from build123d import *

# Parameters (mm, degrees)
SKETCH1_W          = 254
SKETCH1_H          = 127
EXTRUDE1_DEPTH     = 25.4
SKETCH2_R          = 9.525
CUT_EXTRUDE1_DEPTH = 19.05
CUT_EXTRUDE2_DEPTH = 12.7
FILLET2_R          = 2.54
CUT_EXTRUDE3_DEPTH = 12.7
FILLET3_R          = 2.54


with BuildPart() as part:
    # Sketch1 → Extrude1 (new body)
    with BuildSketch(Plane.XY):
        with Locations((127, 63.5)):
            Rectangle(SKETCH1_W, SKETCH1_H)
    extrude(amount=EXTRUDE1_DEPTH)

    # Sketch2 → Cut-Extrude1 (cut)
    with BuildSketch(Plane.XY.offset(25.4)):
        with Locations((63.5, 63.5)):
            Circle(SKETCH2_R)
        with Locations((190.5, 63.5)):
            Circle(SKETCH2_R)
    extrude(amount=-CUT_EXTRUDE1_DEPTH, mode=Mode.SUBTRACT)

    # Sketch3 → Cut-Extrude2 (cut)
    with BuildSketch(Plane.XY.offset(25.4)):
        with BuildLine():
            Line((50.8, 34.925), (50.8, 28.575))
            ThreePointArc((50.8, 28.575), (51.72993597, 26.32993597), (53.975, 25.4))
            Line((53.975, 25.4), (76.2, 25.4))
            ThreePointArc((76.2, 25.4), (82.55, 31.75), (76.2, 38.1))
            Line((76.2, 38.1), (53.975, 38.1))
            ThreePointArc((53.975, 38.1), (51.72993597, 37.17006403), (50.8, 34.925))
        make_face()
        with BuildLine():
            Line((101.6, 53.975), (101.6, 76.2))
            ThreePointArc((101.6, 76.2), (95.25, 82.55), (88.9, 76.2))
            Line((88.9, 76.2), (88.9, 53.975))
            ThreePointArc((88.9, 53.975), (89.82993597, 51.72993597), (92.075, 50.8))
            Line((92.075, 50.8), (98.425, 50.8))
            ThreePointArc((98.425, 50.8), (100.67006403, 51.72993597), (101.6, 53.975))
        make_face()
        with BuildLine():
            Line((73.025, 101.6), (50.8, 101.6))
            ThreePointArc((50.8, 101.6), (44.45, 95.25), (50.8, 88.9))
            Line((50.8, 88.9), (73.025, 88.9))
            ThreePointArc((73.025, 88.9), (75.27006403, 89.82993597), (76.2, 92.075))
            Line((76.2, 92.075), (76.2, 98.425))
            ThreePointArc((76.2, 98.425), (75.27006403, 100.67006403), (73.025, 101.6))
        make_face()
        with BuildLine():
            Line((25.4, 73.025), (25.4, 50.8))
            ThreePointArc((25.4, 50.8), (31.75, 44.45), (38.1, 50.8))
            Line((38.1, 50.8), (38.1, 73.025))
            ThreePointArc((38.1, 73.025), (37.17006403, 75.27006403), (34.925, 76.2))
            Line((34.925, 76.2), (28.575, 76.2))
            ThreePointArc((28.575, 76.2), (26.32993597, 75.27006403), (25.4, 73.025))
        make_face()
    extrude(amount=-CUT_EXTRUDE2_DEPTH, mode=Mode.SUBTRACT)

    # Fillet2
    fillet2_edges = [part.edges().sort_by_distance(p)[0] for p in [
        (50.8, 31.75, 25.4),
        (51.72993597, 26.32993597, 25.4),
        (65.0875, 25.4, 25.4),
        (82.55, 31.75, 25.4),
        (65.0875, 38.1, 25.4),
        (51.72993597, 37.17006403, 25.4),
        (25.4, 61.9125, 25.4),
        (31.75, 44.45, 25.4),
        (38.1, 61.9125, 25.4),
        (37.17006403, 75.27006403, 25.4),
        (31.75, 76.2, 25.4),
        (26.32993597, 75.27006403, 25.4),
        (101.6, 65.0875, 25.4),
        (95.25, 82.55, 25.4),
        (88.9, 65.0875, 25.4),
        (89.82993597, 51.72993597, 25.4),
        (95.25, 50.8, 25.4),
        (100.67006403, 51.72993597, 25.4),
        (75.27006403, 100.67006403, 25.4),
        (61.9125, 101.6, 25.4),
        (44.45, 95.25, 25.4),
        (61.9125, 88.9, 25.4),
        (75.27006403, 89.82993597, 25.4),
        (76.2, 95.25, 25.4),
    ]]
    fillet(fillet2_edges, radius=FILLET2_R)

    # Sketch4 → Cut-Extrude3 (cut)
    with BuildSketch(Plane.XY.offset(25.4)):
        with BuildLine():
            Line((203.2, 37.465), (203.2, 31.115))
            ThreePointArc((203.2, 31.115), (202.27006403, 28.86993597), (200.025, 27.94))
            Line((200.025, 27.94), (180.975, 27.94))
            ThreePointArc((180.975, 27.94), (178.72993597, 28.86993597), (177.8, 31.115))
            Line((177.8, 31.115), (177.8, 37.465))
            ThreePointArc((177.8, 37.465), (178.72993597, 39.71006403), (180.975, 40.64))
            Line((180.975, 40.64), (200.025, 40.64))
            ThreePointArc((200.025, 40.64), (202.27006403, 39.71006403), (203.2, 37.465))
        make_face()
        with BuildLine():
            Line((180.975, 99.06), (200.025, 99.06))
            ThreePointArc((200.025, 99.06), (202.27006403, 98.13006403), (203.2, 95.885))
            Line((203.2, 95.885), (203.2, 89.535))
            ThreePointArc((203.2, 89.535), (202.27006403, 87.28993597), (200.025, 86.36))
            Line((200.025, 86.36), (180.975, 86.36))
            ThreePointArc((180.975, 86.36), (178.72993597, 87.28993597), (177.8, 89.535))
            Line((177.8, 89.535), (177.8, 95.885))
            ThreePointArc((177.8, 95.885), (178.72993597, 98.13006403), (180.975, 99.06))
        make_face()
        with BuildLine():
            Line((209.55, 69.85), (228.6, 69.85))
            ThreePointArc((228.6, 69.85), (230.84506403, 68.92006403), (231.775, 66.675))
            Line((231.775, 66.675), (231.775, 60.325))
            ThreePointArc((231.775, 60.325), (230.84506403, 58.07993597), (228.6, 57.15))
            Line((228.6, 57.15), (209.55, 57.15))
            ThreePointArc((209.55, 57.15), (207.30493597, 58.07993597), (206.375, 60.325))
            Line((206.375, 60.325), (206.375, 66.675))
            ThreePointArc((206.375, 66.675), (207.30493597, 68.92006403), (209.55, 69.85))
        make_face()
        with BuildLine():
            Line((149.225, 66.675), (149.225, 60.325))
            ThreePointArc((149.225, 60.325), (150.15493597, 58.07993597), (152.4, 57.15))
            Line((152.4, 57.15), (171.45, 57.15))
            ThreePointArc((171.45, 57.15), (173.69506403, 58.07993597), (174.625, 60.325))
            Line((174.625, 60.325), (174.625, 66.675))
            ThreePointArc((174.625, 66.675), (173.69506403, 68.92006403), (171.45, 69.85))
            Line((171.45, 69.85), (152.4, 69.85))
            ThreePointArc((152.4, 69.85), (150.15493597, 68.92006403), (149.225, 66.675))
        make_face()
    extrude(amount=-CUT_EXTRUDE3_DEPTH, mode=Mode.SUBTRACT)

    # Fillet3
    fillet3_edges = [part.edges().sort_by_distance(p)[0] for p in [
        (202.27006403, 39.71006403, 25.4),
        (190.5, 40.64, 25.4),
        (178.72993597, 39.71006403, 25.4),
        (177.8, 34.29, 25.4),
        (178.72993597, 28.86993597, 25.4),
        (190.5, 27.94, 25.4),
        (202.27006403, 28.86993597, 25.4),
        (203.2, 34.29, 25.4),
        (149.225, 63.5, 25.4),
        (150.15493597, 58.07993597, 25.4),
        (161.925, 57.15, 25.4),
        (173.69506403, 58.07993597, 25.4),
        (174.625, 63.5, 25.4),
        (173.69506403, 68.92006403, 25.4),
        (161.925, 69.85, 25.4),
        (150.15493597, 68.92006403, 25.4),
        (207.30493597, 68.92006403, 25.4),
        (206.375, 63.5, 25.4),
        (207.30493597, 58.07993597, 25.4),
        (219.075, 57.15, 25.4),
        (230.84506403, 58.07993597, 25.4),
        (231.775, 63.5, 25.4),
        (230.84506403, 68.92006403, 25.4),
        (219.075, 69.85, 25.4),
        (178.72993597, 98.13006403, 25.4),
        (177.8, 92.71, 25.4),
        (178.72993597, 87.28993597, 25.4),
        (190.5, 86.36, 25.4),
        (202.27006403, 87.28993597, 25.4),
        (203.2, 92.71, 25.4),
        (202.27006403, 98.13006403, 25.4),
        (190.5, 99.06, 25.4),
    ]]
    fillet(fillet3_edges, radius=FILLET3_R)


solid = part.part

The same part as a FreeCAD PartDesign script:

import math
import FreeCAD as App
import Part
import Sketcher
from FreeCAD import Vector
Q = App.Units.Quantity


def edges_at(feature, points):
    """Names of the edges that pass closest to the given points."""
    edges = feature.Shape.Edges
    near = lambda p: min(range(len(edges)), key=lambda i: edges[i].distToShape(Part.Vertex(*p))[0])
    return sorted({f"Edge{near(p) + 1}" for p in points})

doc = App.newDocument("Part")
params = doc.addObject("Spreadsheet::Sheet", "Params")
for row, (alias, value) in enumerate([
    ("sketch1_width", "10 in"),
    ("sketch1_height", "5 in"),
    ("pad1_length", "1 in"),
    ("sketch2_diameter", "0.75 in"),
    ("pocket1_length", "0.75 in"),
    ("sketch3_radius", "0.25 in"),
    ("sketch3_radius2", "0.125 in"),
    ("pocket2_length", "0.5 in"),
    ("fillet_radius", "0.1 in"),
    ("sketch4_radius", "0.125 in"),
    ("sketch4_height", "0.25 in"),
    ("pocket3_length", "0.5 in"),
    ("fillet2_radius", "0.1 in"),
], start=1):
    params.set(f"A{row}", alias)
    params.set(f"B{row}", "=" + value)
    params.setAlias(f"B{row}", alias)

body = doc.addObject("PartDesign::Body", "Body")

# Sketch on XY plane
sketch1 = body.newObject("Sketcher::SketchObject", "Sketch")
sketch1.AttachmentSupport = (doc.getObject("XY_Plane"), [""])
sketch1.MapMode = "FlatFace"
sketch1.addGeometry(Part.LineSegment(Vector(0, 127, 0), Vector(0, 0, 0)), False)
sketch1.addGeometry(Part.LineSegment(Vector(0, 0, 0), Vector(254, 0, 0)), False)
sketch1.addGeometry(Part.LineSegment(Vector(254, 0, 0), Vector(254, 127, 0)), False)
sketch1.addGeometry(Part.LineSegment(Vector(254, 127, 0), Vector(0, 127, 0)), False)
sketch1.addConstraint(Sketcher.Constraint("Coincident", 0, 2, 1, 1))
sketch1.addConstraint(Sketcher.Constraint("Coincident", 1, 2, 2, 1))
sketch1.addConstraint(Sketcher.Constraint("Coincident", 2, 2, 3, 1))
sketch1.addConstraint(Sketcher.Constraint("Coincident", 3, 2, 0, 1))
sketch1.addConstraint(Sketcher.Constraint("Vertical", 0))
sketch1.addConstraint(Sketcher.Constraint("Horizontal", 1))
sketch1.addConstraint(Sketcher.Constraint("Vertical", 2))
sketch1.addConstraint(Sketcher.Constraint("Horizontal", 3))
sketch1.addConstraint(Sketcher.Constraint("Coincident", 0, 2, -1, 1))
sketch1.addConstraint(Sketcher.Constraint("DistanceX", 1, 1, 1, 2, Q("10 in")))
sketch1.addConstraint(Sketcher.Constraint("DistanceY", 0, 2, 0, 1, Q("5 in")))
sketch1.setExpression("Constraints[9]", "Params.sketch1_width")
sketch1.setExpression("Constraints[10]", "Params.sketch1_height")
pad1 = body.newObject("PartDesign::Pad", "Pad")
pad1.Profile = sketch1
pad1.setExpression("Length", "Params.pad1_length")

# Sketch on XY plane
sketch2 = body.newObject("Sketcher::SketchObject", "Sketch001")
sketch2.AttachmentSupport = (doc.getObject("XY_Plane"), [""])
sketch2.MapMode = "FlatFace"
sketch2.AttachmentOffset = App.Placement(Vector(0, 0, 1 * 25.4), App.Rotation())
sketch2.addGeometry(Part.Circle(Vector(64, 64, 0), Vector(0, 0, 1), 10), False)
sketch2.addGeometry(Part.Circle(Vector(190, 64, 0), Vector(0, 0, 1), 10), False)
sketch2.addConstraint(Sketcher.Constraint("Equal", 0, 1))
sketch2.addConstraint(Sketcher.Constraint("Horizontal", 0, 3, 1, 3))
sketch2.addConstraint(Sketcher.Constraint("Diameter", 0, Q("0.75 in")))
sketch2.addConstraint(Sketcher.Constraint("DistanceX", 0, 3, 1, 3, Q("5 in")))
sketch2.addConstraint(Sketcher.Constraint("DistanceX", -1, 1, 0, 3, Q("2.5 in")))
sketch2.addConstraint(Sketcher.Constraint("DistanceY", -1, 1, 0, 3, Q("2.5 in")))
sketch2.setExpression("Constraints[2]", "Params.sketch2_diameter")
pocket1 = body.newObject("PartDesign::Pocket", "Pocket")
pocket1.Profile = sketch2
pocket1.setExpression("Length", "Params.pocket1_length")

# Sketch on XY plane
sketch3 = body.newObject("Sketcher::SketchObject", "Sketch002")
sketch3.AttachmentSupport = (doc.getObject("XY_Plane"), [""])
sketch3.MapMode = "FlatFace"
sketch3.AttachmentOffset = App.Placement(Vector(0, 0, 1 * 25.4), App.Rotation())
sketch3.addGeometry(Part.LineSegment(Vector(50.8, 34.9, 0), Vector(50.8, 28.6, 0)), False)
sketch3.addGeometry(Part.ArcOfCircle(Part.Circle(Vector(54, 28.6, 0), Vector(0, 0, 1), 3.2), math.radians(-180), math.radians(-90)), False)
sketch3.addGeometry(Part.LineSegment(Vector(54, 25.4, 0), Vector(76.2, 25.4, 0)), False)
sketch3.addGeometry(Part.ArcOfCircle(Part.Circle(Vector(76.2, 31.8, 0), Vector(0, 0, 1), 6.3), math.radians(-90), math.radians(90)), False)
sketch3.addGeometry(Part.LineSegment(Vector(76.2, 38.1, 0), Vector(54, 38.1, 0)), False)
sketch3.addGeometry(Part.ArcOfCircle(Part.Circle(Vector(54, 34.9, 0), Vector(0, 0, 1), 3.2), math.radians(90), math.radians(180)), False)
sketch3.addGeometry(Part.LineSegment(Vector(101.6, 54, 0), Vector(101.6, 76.2, 0)), False)
sketch3.addGeometry(Part.ArcOfCircle(Part.Circle(Vector(95.2, 76.2, 0), Vector(0, 0, 1), 6.3), math.radians(0), math.radians(180)), False)
sketch3.addGeometry(Part.LineSegment(Vector(88.9, 76.2, 0), Vector(88.9, 54, 0)), False)
sketch3.addGeometry(Part.ArcOfCircle(Part.Circle(Vector(92.1, 54, 0), Vector(0, 0, 1), 3.2), math.radians(-180), math.radians(-90)), False)
sketch3.addGeometry(Part.LineSegment(Vector(92.1, 50.8, 0), Vector(98.4, 50.8, 0)), False)
sketch3.addGeometry(Part.ArcOfCircle(Part.Circle(Vector(98.4, 54, 0), Vector(0, 0, 1), 3.2), math.radians(-90), math.radians(0)), False)
sketch3.addGeometry(Part.LineSegment(Vector(73, 101.6, 0), Vector(50.8, 101.6, 0)), False)
sketch3.addGeometry(Part.ArcOfCircle(Part.Circle(Vector(50.8, 95.2, 0), Vector(0, 0, 1), 6.3), math.radians(90), math.radians(270)), False)
sketch3.addGeometry(Part.LineSegment(Vector(50.8, 88.9, 0), Vector(73, 88.9, 0)), False)
sketch3.addGeometry(Part.ArcOfCircle(Part.Circle(Vector(73, 92.1, 0), Vector(0, 0, 1), 3.2), math.radians(-90), math.radians(0)), False)
sketch3.addGeometry(Part.LineSegment(Vector(76.2, 92.1, 0), Vector(76.2, 98.4, 0)), False)
sketch3.addGeometry(Part.ArcOfCircle(Part.Circle(Vector(73, 98.4, 0), Vector(0, 0, 1), 3.2), math.radians(0), math.radians(90)), False)
sketch3.addGeometry(Part.LineSegment(Vector(25.4, 73, 0), Vector(25.4, 50.8, 0)), False)
sketch3.addGeometry(Part.ArcOfCircle(Part.Circle(Vector(31.8, 50.8, 0), Vector(0, 0, 1), 6.3), math.radians(180), math.radians(360)), False)
sketch3.addGeometry(Part.LineSegment(Vector(38.1, 50.8, 0), Vector(38.1, 73, 0)), False)
sketch3.addGeometry(Part.ArcOfCircle(Part.Circle(Vector(34.9, 73, 0), Vector(0, 0, 1), 3.2), math.radians(0), math.radians(90)), False)
sketch3.addGeometry(Part.LineSegment(Vector(34.9, 76.2, 0), Vector(28.6, 76.2, 0)), False)
sketch3.addGeometry(Part.ArcOfCircle(Part.Circle(Vector(28.6, 73, 0), Vector(0, 0, 1), 3.2), math.radians(90), math.radians(180)), False)
sketch3.addConstraint(Sketcher.Constraint("Tangent", 0, 2, 1, 1))
sketch3.addConstraint(Sketcher.Constraint("Tangent", 1, 2, 2, 1))
sketch3.addConstraint(Sketcher.Constraint("Tangent", 2, 2, 3, 1))
sketch3.addConstraint(Sketcher.Constraint("Tangent", 3, 2, 4, 1))
sketch3.addConstraint(Sketcher.Constraint("Tangent", 4, 2, 5, 1))
sketch3.addConstraint(Sketcher.Constraint("Tangent", 5, 2, 0, 1))
sketch3.addConstraint(Sketcher.Constraint("Tangent", 6, 2, 7, 1))
sketch3.addConstraint(Sketcher.Constraint("Tangent", 7, 2, 8, 1))
sketch3.addConstraint(Sketcher.Constraint("Tangent", 8, 2, 9, 1))
sketch3.addConstraint(Sketcher.Constraint("Tangent", 9, 2, 10, 1))
sketch3.addConstraint(Sketcher.Constraint("Tangent", 10, 2, 11, 1))
sketch3.addConstraint(Sketcher.Constraint("Tangent", 11, 2, 6, 1))
sketch3.addConstraint(Sketcher.Constraint("Tangent", 12, 2, 13, 1))
sketch3.addConstraint(Sketcher.Constraint("Tangent", 13, 2, 14, 1))
sketch3.addConstraint(Sketcher.Constraint("Tangent", 14, 2, 15, 1))
sketch3.addConstraint(Sketcher.Constraint("Tangent", 15, 2, 16, 1))
sketch3.addConstraint(Sketcher.Constraint("Tangent", 16, 2, 17, 1))
sketch3.addConstraint(Sketcher.Constraint("Tangent", 17, 2, 12, 1))
sketch3.addConstraint(Sketcher.Constraint("Tangent", 18, 2, 19, 1))
sketch3.addConstraint(Sketcher.Constraint("Tangent", 19, 2, 20, 1))
sketch3.addConstraint(Sketcher.Constraint("Tangent", 20, 2, 21, 1))
sketch3.addConstraint(Sketcher.Constraint("Tangent", 21, 2, 22, 1))
sketch3.addConstraint(Sketcher.Constraint("Tangent", 22, 2, 23, 1))
sketch3.addConstraint(Sketcher.Constraint("Tangent", 23, 2, 18, 1))
sketch3.addConstraint(Sketcher.Constraint("Vertical", 0))
sketch3.addConstraint(Sketcher.Constraint("Horizontal", 2))
sketch3.addConstraint(Sketcher.Constraint("Horizontal", 4))
sketch3.addConstraint(Sketcher.Constraint("Vertical", 6))
sketch3.addConstraint(Sketcher.Constraint("Vertical", 8))
sketch3.addConstraint(Sketcher.Constraint("Horizontal", 10))
sketch3.addConstraint(Sketcher.Constraint("Horizontal", 12))
sketch3.addConstraint(Sketcher.Constraint("Horizontal", 14))
sketch3.addConstraint(Sketcher.Constraint("Vertical", 16))
sketch3.addConstraint(Sketcher.Constraint("Vertical", 18))
sketch3.addConstraint(Sketcher.Constraint("Vertical", 20))
sketch3.addConstraint(Sketcher.Constraint("Horizontal", 22))
sketch3.addConstraint(Sketcher.Constraint("Equal", 1, 5))
sketch3.addConstraint(Sketcher.Constraint("Equal", 3, 7))
sketch3.addConstraint(Sketcher.Constraint("Equal", 5, 9))
sketch3.addConstraint(Sketcher.Constraint("Equal", 9, 11))
sketch3.addConstraint(Sketcher.Constraint("Equal", 7, 13))
sketch3.addConstraint(Sketcher.Constraint("Equal", 11, 15))
sketch3.addConstraint(Sketcher.Constraint("Equal", 15, 17))
sketch3.addConstraint(Sketcher.Constraint("Equal", 13, 19))
sketch3.addConstraint(Sketcher.Constraint("Equal", 17, 21))
sketch3.addConstraint(Sketcher.Constraint("Equal", 21, 23))
sketch3.addConstraint(Sketcher.Constraint("Horizontal", 19, 3, 9, 2))
sketch3.addConstraint(Sketcher.Constraint("Horizontal", 7, 2, 21, 2))
sketch3.addConstraint(Sketcher.Constraint("Vertical", 13, 3, 0, 2))
sketch3.addConstraint(Sketcher.Constraint("Vertical", 3, 2, 15, 2))
sketch3.addConstraint(Sketcher.Constraint("Equal", 14, 6))
sketch3.addConstraint(Sketcher.Constraint("Radius", 3, Q("0.25 in")))
sketch3.addConstraint(Sketcher.Constraint("DistanceX", -1, 1, 3, 3, Q("3 in")))
sketch3.addConstraint(Sketcher.Constraint("DistanceY", -1, 1, 7, 3, Q("3 in")))
sketch3.addConstraint(Sketcher.Constraint("DistanceX", -1, 1, 13, 3, Q("2 in")))
sketch3.addConstraint(Sketcher.Constraint("DistanceY", -1, 1, 1, 2, Q("1 in")))
sketch3.addConstraint(Sketcher.Constraint("DistanceX", -1, 1, 6, 2, Q("4 in")))
sketch3.addConstraint(Sketcher.Constraint("DistanceY", -1, 1, 12, 2, Q("4 in")))
sketch3.addConstraint(Sketcher.Constraint("DistanceX", -1, 1, 18, 2, Q("1 in")))
sketch3.addConstraint(Sketcher.Constraint("Radius", 1, Q("0.125 in")))
sketch3.setExpression("Constraints[51]", "Params.sketch3_radius")
sketch3.setExpression("Constraints[59]", "Params.sketch3_radius2")
pocket2 = body.newObject("PartDesign::Pocket", "Pocket001")
pocket2.Profile = sketch3
pocket2.setExpression("Length", "Params.pocket2_length")
doc.recompute()

fillet = body.newObject("PartDesign::Fillet", "Fillet")
fillet.Base = (pocket2, edges_at(pocket2, [
    (50.8, 31.75, 25.4),
    (51.73, 26.33, 25.4),
    (65.088, 25.4, 25.4),
    (82.55, 31.75, 25.4),
    (65.088, 38.1, 25.4),
    (51.73, 37.17, 25.4),
    (25.4, 61.913, 25.4),
    (31.75, 44.45, 25.4),
    (38.1, 61.913, 25.4),
    (37.17, 75.27, 25.4),
    (31.75, 76.2, 25.4),
    (26.33, 75.27, 25.4),
    (101.6, 65.088, 25.4),
    (95.25, 82.55, 25.4),
    (88.9, 65.088, 25.4),
    (89.83, 51.73, 25.4),
    (95.25, 50.8, 25.4),
    (100.67, 51.73, 25.4),
    (75.27, 100.67, 25.4),
    (61.913, 101.6, 25.4),
    (44.45, 95.25, 25.4),
    (61.913, 88.9, 25.4),
    (75.27, 89.83, 25.4),
    (76.2, 95.25, 25.4),
]))
fillet.setExpression("Radius", "Params.fillet_radius")

# Sketch on XY plane
sketch4 = body.newObject("Sketcher::SketchObject", "Sketch003")
sketch4.AttachmentSupport = (doc.getObject("XY_Plane"), [""])
sketch4.MapMode = "FlatFace"
sketch4.AttachmentOffset = App.Placement(Vector(0, 0, 1 * 25.4), App.Rotation())
sketch4.addGeometry(Part.LineSegment(Vector(203.2, 31.1, 0), Vector(203.2, 37.5, 0)), False)
sketch4.addGeometry(Part.ArcOfCircle(Part.Circle(Vector(200, 37.5, 0), Vector(0, 0, 1), 3.2), math.radians(0), math.radians(90)), False)
sketch4.addGeometry(Part.LineSegment(Vector(200, 40.6, 0), Vector(181, 40.6, 0)), False)
sketch4.addGeometry(Part.ArcOfCircle(Part.Circle(Vector(181, 37.5, 0), Vector(0, 0, 1), 3.2), math.radians(90), math.radians(180)), False)
sketch4.addGeometry(Part.LineSegment(Vector(177.8, 37.5, 0), Vector(177.8, 31.1, 0)), False)
sketch4.addGeometry(Part.ArcOfCircle(Part.Circle(Vector(181, 31.1, 0), Vector(0, 0, 1), 3.2), math.radians(-180), math.radians(-90)), False)
sketch4.addGeometry(Part.LineSegment(Vector(181, 27.9, 0), Vector(200, 27.9, 0)), False)
sketch4.addGeometry(Part.ArcOfCircle(Part.Circle(Vector(200, 31.1, 0), Vector(0, 0, 1), 3.2), math.radians(-90), math.radians(0)), False)
sketch4.addGeometry(Part.LineSegment(Vector(200, 99.1, 0), Vector(181, 99.1, 0)), False)
sketch4.addGeometry(Part.ArcOfCircle(Part.Circle(Vector(181, 95.9, 0), Vector(0, 0, 1), 3.2), math.radians(90), math.radians(180)), False)
sketch4.addGeometry(Part.LineSegment(Vector(177.8, 95.9, 0), Vector(177.8, 89.5, 0)), False)
sketch4.addGeometry(Part.ArcOfCircle(Part.Circle(Vector(181, 89.5, 0), Vector(0, 0, 1), 3.2), math.radians(-180), math.radians(-90)), False)
sketch4.addGeometry(Part.LineSegment(Vector(181, 86.4, 0), Vector(200, 86.4, 0)), False)
sketch4.addGeometry(Part.ArcOfCircle(Part.Circle(Vector(200, 89.5, 0), Vector(0, 0, 1), 3.2), math.radians(-90), math.radians(0)), False)
sketch4.addGeometry(Part.LineSegment(Vector(203.2, 89.5, 0), Vector(203.2, 95.9, 0)), False)
sketch4.addGeometry(Part.ArcOfCircle(Part.Circle(Vector(200, 95.9, 0), Vector(0, 0, 1), 3.2), math.radians(0), math.radians(90)), False)
sketch4.addGeometry(Part.LineSegment(Vector(228.6, 69.8, 0), Vector(209.6, 69.8, 0)), False)
sketch4.addGeometry(Part.ArcOfCircle(Part.Circle(Vector(209.6, 66.7, 0), Vector(0, 0, 1), 3.2), math.radians(90), math.radians(180)), False)
sketch4.addGeometry(Part.LineSegment(Vector(206.4, 66.7, 0), Vector(206.4, 60.3, 0)), False)
sketch4.addGeometry(Part.ArcOfCircle(Part.Circle(Vector(209.6, 60.3, 0), Vector(0, 0, 1), 3.2), math.radians(-180), math.radians(-90)), False)
sketch4.addGeometry(Part.LineSegment(Vector(209.6, 57.1, 0), Vector(228.6, 57.1, 0)), False)
sketch4.addGeometry(Part.ArcOfCircle(Part.Circle(Vector(228.6, 60.3, 0), Vector(0, 0, 1), 3.2), math.radians(-90), math.radians(0)), False)
sketch4.addGeometry(Part.LineSegment(Vector(231.8, 60.3, 0), Vector(231.8, 66.7, 0)), False)
sketch4.addGeometry(Part.ArcOfCircle(Part.Circle(Vector(228.6, 66.7, 0), Vector(0, 0, 1), 3.2), math.radians(0), math.radians(90)), False)
sketch4.addGeometry(Part.LineSegment(Vector(149.2, 66.7, 0), Vector(149.2, 60.3, 0)), False)
sketch4.addGeometry(Part.ArcOfCircle(Part.Circle(Vector(152.4, 60.3, 0), Vector(0, 0, 1), 3.2), math.radians(-180), math.radians(-90)), False)
sketch4.addGeometry(Part.LineSegment(Vector(152.4, 57.1, 0), Vector(171.4, 57.1, 0)), False)
sketch4.addGeometry(Part.ArcOfCircle(Part.Circle(Vector(171.4, 60.3, 0), Vector(0, 0, 1), 3.2), math.radians(-90), math.radians(0)), False)
sketch4.addGeometry(Part.LineSegment(Vector(174.6, 60.3, 0), Vector(174.6, 66.7, 0)), False)
sketch4.addGeometry(Part.ArcOfCircle(Part.Circle(Vector(171.4, 66.7, 0), Vector(0, 0, 1), 3.2), math.radians(0), math.radians(90)), False)
sketch4.addGeometry(Part.LineSegment(Vector(171.4, 69.8, 0), Vector(152.4, 69.8, 0)), False)
sketch4.addGeometry(Part.ArcOfCircle(Part.Circle(Vector(152.4, 66.7, 0), Vector(0, 0, 1), 3.2), math.radians(90), math.radians(180)), False)
sketch4.addConstraint(Sketcher.Constraint("Tangent", 0, 2, 1, 1))
sketch4.addConstraint(Sketcher.Constraint("Tangent", 1, 2, 2, 1))
sketch4.addConstraint(Sketcher.Constraint("Tangent", 2, 2, 3, 1))
sketch4.addConstraint(Sketcher.Constraint("Tangent", 3, 2, 4, 1))
sketch4.addConstraint(Sketcher.Constraint("Tangent", 4, 2, 5, 1))
sketch4.addConstraint(Sketcher.Constraint("Tangent", 5, 2, 6, 1))
sketch4.addConstraint(Sketcher.Constraint("Tangent", 6, 2, 7, 1))
sketch4.addConstraint(Sketcher.Constraint("Tangent", 7, 2, 0, 1))
sketch4.addConstraint(Sketcher.Constraint("Tangent", 8, 2, 9, 1))
sketch4.addConstraint(Sketcher.Constraint("Tangent", 9, 2, 10, 1))
sketch4.addConstraint(Sketcher.Constraint("Tangent", 10, 2, 11, 1))
sketch4.addConstraint(Sketcher.Constraint("Tangent", 11, 2, 12, 1))
sketch4.addConstraint(Sketcher.Constraint("Tangent", 12, 2, 13, 1))
sketch4.addConstraint(Sketcher.Constraint("Tangent", 13, 2, 14, 1))
sketch4.addConstraint(Sketcher.Constraint("Tangent", 14, 2, 15, 1))
sketch4.addConstraint(Sketcher.Constraint("Tangent", 15, 2, 8, 1))
sketch4.addConstraint(Sketcher.Constraint("Tangent", 16, 2, 17, 1))
sketch4.addConstraint(Sketcher.Constraint("Tangent", 17, 2, 18, 1))
sketch4.addConstraint(Sketcher.Constraint("Tangent", 18, 2, 19, 1))
sketch4.addConstraint(Sketcher.Constraint("Tangent", 19, 2, 20, 1))
sketch4.addConstraint(Sketcher.Constraint("Tangent", 20, 2, 21, 1))
sketch4.addConstraint(Sketcher.Constraint("Tangent", 21, 2, 22, 1))
sketch4.addConstraint(Sketcher.Constraint("Tangent", 22, 2, 23, 1))
sketch4.addConstraint(Sketcher.Constraint("Tangent", 23, 2, 16, 1))
sketch4.addConstraint(Sketcher.Constraint("Tangent", 24, 2, 25, 1))
sketch4.addConstraint(Sketcher.Constraint("Tangent", 25, 2, 26, 1))
sketch4.addConstraint(Sketcher.Constraint("Tangent", 26, 2, 27, 1))
sketch4.addConstraint(Sketcher.Constraint("Tangent", 27, 2, 28, 1))
sketch4.addConstraint(Sketcher.Constraint("Tangent", 28, 2, 29, 1))
sketch4.addConstraint(Sketcher.Constraint("Tangent", 29, 2, 30, 1))
sketch4.addConstraint(Sketcher.Constraint("Tangent", 30, 2, 31, 1))
sketch4.addConstraint(Sketcher.Constraint("Tangent", 31, 2, 24, 1))
sketch4.addConstraint(Sketcher.Constraint("Vertical", 0))
sketch4.addConstraint(Sketcher.Constraint("Horizontal", 2))
sketch4.addConstraint(Sketcher.Constraint("Vertical", 4))
sketch4.addConstraint(Sketcher.Constraint("Horizontal", 6))
sketch4.addConstraint(Sketcher.Constraint("Horizontal", 8))
sketch4.addConstraint(Sketcher.Constraint("Vertical", 10))
sketch4.addConstraint(Sketcher.Constraint("Horizontal", 12))
sketch4.addConstraint(Sketcher.Constraint("Vertical", 14))
sketch4.addConstraint(Sketcher.Constraint("Horizontal", 16))
sketch4.addConstraint(Sketcher.Constraint("Vertical", 18))
sketch4.addConstraint(Sketcher.Constraint("Horizontal", 20))
sketch4.addConstraint(Sketcher.Constraint("Vertical", 22))
sketch4.addConstraint(Sketcher.Constraint("Vertical", 24))
sketch4.addConstraint(Sketcher.Constraint("Horizontal", 26))
sketch4.addConstraint(Sketcher.Constraint("Vertical", 28))
sketch4.addConstraint(Sketcher.Constraint("Horizontal", 30))
sketch4.addConstraint(Sketcher.Constraint("Equal", 1, 3))
sketch4.addConstraint(Sketcher.Constraint("Equal", 3, 5))
sketch4.addConstraint(Sketcher.Constraint("Equal", 5, 7))
sketch4.addConstraint(Sketcher.Constraint("Equal", 7, 9))
sketch4.addConstraint(Sketcher.Constraint("Equal", 9, 11))
sketch4.addConstraint(Sketcher.Constraint("Equal", 11, 13))
sketch4.addConstraint(Sketcher.Constraint("Equal", 13, 15))
sketch4.addConstraint(Sketcher.Constraint("Equal", 15, 17))
sketch4.addConstraint(Sketcher.Constraint("Equal", 17, 19))
sketch4.addConstraint(Sketcher.Constraint("Equal", 19, 21))
sketch4.addConstraint(Sketcher.Constraint("Equal", 21, 23))
sketch4.addConstraint(Sketcher.Constraint("Equal", 23, 25))
sketch4.addConstraint(Sketcher.Constraint("Equal", 25, 27))
sketch4.addConstraint(Sketcher.Constraint("Equal", 27, 29))
sketch4.addConstraint(Sketcher.Constraint("Equal", 29, 31))
sketch4.addConstraint(Sketcher.Constraint("Horizontal", 21, 3, 25, 3))
sketch4.addConstraint(Sketcher.Constraint("Horizontal", 23, 3, 29, 3))
sketch4.addConstraint(Sketcher.Constraint("Vertical", 5, 3, 9, 3))
sketch4.addConstraint(Sketcher.Constraint("Vertical", 7, 3, 13, 3))
sketch4.addConstraint(Sketcher.Constraint("Equal", 12, 16))
sketch4.addConstraint(Sketcher.Constraint("Equal", 20, 26))
sketch4.addConstraint(Sketcher.Constraint("Equal", 4, 10))
sketch4.addConstraint(Sketcher.Constraint("Equal", 14, 18))
sketch4.addConstraint(Sketcher.Constraint("DistanceX", -1, 1, 21, 3, Q("9 in")))
sketch4.addConstraint(Sketcher.Constraint("DistanceX", -1, 1, 25, 3, Q("6 in")))
sketch4.addConstraint(Sketcher.Constraint("DistanceX", -1, 1, 0, 2, Q("8 in")))
sketch4.addConstraint(Sketcher.Constraint("DistanceX", -1, 1, 3, 2, Q("7 in")))
sketch4.addConstraint(Sketcher.Constraint("Radius", 1, Q("0.125 in")))
sketch4.addConstraint(Sketcher.Constraint("DistanceY", 0, 1, 0, 2, Q("0.25 in")))
sketch4.addConstraint(Sketcher.Constraint("DistanceY", -1, 1, 1, 2, Q("1.6 in")))
sketch4.addConstraint(Sketcher.Constraint("DistanceY", -1, 1, 8, 2, Q("3.9 in")))
sketch4.addConstraint(Sketcher.Constraint("DistanceY", 17, 3, 13, 3, Q("0.9 in")))
sketch4.setExpression("Constraints[75]", "Params.sketch4_radius")
sketch4.setExpression("Constraints[76]", "Params.sketch4_height")
pocket3 = body.newObject("PartDesign::Pocket", "Pocket002")
pocket3.Profile = sketch4
pocket3.setExpression("Length", "Params.pocket3_length")
doc.recompute()

fillet2 = body.newObject("PartDesign::Fillet", "Fillet001")
fillet2.Base = (pocket3, edges_at(pocket3, [
    (202.27, 39.71, 25.4),
    (190.5, 40.64, 25.4),
    (178.73, 39.71, 25.4),
    (177.8, 34.29, 25.4),
    (178.73, 28.87, 25.4),
    (190.5, 27.94, 25.4),
    (202.27, 28.87, 25.4),
    (203.2, 34.29, 25.4),
    (149.225, 63.5, 25.4),
    (150.155, 58.08, 25.4),
    (161.925, 57.15, 25.4),
    (173.695, 58.08, 25.4),
    (174.625, 63.5, 25.4),
    (173.695, 68.92, 25.4),
    (161.925, 69.85, 25.4),
    (150.155, 68.92, 25.4),
    (207.305, 68.92, 25.4),
    (206.375, 63.5, 25.4),
    (207.305, 58.08, 25.4),
    (219.075, 57.15, 25.4),
    (230.845, 58.08, 25.4),
    (231.775, 63.5, 25.4),
    (230.845, 68.92, 25.4),
    (219.075, 69.85, 25.4),
    (178.73, 98.13, 25.4),
    (177.8, 92.71, 25.4),
    (178.73, 87.29, 25.4),
    (190.5, 86.36, 25.4),
    (202.27, 87.29, 25.4),
    (203.2, 92.71, 25.4),
    (202.27, 98.13, 25.4),
    (190.5, 99.06, 25.4),
]))
fillet2.setExpression("Radius", "Params.fillet2_radius")

doc.recompute()
